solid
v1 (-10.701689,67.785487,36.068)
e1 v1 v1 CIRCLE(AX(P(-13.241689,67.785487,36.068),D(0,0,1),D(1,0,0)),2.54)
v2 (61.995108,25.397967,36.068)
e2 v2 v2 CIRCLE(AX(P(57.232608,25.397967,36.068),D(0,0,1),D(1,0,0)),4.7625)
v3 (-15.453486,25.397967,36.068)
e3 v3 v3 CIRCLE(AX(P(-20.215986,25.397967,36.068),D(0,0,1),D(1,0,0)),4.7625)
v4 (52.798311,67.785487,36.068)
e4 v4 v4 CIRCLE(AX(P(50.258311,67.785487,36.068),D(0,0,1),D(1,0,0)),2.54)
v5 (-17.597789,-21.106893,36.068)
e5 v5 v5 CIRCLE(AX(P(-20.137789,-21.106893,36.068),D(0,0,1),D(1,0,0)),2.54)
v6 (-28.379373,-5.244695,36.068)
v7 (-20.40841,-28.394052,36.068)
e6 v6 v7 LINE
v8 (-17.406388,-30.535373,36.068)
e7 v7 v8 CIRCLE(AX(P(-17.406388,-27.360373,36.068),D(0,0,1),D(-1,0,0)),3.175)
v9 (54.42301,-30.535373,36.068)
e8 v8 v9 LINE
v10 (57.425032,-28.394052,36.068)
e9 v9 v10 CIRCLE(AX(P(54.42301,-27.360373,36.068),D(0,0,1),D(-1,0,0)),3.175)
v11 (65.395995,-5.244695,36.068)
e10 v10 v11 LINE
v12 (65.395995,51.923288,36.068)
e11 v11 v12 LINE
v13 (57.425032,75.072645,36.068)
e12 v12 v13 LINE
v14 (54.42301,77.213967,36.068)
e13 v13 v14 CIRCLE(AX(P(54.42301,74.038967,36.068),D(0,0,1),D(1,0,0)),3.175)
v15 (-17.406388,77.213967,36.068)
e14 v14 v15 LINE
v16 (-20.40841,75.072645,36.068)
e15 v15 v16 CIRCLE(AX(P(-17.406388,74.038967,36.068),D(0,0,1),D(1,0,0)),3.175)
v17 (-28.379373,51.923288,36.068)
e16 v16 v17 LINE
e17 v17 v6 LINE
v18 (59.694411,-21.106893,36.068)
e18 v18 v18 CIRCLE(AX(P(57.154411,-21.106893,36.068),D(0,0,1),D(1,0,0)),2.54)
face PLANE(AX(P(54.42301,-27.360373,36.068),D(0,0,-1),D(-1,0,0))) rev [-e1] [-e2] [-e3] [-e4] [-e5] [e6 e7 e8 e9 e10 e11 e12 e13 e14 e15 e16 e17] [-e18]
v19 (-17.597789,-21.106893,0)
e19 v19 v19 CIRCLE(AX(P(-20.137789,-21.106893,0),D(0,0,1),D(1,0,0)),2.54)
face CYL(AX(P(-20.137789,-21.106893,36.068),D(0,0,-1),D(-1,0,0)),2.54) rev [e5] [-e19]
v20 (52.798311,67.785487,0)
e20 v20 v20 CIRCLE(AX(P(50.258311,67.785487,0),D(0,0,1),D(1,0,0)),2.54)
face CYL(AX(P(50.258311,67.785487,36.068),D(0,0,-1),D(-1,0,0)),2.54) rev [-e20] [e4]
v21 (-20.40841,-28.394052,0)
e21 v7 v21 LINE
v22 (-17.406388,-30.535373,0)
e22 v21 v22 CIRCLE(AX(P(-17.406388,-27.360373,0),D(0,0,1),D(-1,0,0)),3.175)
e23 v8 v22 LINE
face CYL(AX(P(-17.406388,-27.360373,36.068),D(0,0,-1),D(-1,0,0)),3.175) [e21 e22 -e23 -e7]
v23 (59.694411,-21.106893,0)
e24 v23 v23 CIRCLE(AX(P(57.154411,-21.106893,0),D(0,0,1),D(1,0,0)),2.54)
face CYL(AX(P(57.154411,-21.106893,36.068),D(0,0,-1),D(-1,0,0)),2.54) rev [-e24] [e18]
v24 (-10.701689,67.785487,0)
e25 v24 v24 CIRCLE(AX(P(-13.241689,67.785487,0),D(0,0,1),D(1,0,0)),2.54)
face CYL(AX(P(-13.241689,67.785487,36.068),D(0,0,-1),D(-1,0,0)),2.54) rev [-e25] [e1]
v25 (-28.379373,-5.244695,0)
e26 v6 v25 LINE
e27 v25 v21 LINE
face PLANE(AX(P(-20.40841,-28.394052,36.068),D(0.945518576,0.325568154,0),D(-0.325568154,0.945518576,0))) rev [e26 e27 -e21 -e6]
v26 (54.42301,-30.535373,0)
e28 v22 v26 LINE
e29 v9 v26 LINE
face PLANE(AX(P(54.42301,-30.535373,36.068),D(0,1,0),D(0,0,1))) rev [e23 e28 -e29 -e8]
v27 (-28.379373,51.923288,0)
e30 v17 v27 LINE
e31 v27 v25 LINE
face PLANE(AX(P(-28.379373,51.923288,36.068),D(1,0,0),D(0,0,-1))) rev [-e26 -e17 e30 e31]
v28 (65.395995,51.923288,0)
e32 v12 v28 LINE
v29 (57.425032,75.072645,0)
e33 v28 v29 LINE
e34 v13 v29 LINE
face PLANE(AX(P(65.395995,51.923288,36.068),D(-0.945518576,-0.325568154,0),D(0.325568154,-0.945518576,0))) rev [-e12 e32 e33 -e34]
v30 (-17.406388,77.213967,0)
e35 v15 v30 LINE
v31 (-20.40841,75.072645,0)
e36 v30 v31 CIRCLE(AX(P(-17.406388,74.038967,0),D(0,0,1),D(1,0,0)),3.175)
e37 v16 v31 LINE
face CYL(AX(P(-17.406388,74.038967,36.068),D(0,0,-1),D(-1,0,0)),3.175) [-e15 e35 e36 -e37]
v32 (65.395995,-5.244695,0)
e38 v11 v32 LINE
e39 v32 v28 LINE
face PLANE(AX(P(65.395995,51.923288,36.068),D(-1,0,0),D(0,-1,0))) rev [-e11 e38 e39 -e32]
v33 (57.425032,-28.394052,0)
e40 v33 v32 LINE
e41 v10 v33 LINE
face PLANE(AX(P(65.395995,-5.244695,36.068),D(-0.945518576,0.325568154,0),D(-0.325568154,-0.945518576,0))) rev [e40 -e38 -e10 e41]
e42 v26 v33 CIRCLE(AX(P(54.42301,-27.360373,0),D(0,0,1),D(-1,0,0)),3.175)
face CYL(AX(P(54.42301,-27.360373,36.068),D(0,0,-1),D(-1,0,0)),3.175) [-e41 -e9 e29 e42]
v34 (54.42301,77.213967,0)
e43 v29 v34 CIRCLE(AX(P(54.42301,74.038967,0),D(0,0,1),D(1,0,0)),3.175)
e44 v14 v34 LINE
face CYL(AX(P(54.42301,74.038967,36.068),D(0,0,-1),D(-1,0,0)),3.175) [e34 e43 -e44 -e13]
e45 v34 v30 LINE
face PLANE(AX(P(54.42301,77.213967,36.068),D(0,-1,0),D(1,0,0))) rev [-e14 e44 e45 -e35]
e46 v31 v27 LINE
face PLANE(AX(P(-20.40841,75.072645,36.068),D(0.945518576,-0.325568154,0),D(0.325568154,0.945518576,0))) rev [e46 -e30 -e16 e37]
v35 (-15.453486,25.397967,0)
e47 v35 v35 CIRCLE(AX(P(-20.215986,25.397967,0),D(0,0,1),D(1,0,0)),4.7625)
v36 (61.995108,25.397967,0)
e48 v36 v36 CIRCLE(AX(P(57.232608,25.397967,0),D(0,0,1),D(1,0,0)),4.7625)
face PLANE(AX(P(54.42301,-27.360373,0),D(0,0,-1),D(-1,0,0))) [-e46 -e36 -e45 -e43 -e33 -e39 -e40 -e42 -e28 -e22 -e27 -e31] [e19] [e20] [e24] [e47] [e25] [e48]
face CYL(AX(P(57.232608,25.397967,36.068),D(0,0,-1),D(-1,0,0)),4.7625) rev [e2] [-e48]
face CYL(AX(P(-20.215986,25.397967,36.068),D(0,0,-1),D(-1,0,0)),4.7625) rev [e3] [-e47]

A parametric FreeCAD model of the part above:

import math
import FreeCAD as App
import Part
import Sketcher
from FreeCAD import Vector
Q = App.Units.Quantity

doc = App.newDocument("Part")
params = doc.addObject("Spreadsheet::Sheet", "Params")
for row, (alias, value) in enumerate([
    ("sketch1_diameter", "0.2 in"),
    ("sketch1_diameter2", "0.375 in"),
    ("sketch1_radius", "0.125 in"),
    ("pad1_length", "1.42 in"),
], start=1):
    params.set(f"A{row}", alias)
    params.set(f"B{row}", "=" + value)
    params.setAlias(f"B{row}", alias)

body = doc.addObject("PartDesign::Body", "Body")

# Sketch on XY plane
sketch1 = body.newObject("Sketcher::SketchObject", "Sketch")
sketch1.AttachmentSupport = (doc.getObject("XY_Plane"), [""])
sketch1.MapMode = "FlatFace"
sketch1.addGeometry(Part.LineSegment(Vector(65.4, 51.9, 0), Vector(57.4, 75.1, 0)), False)
sketch1.addGeometry(Part.ArcOfCircle(Part.Circle(Vector(54.4, 74, 0), Vector(0, 0, 1), 3.2), math.radians(19), math.radians(90)), False)
sketch1.addGeometry(Part.LineSegment(Vector(54.4, 77.2, 0), Vector(-17.4, 77.2, 0)), False)
sketch1.addGeometry(Part.ArcOfCircle(Part.Circle(Vector(-17.4, 74, 0), Vector(0, 0, 1), 3.2), math.radians(90), math.radians(161)), False)
sketch1.addGeometry(Part.LineSegment(Vector(-20.4, 75.1, 0), Vector(-28.4, 51.9, 0)), False)
sketch1.addGeometry(Part.LineSegment(Vector(-28.4, 51.9, 0), Vector(-28.4, -5.2, 0)), False)
sketch1.addGeometry(Part.LineSegment(Vector(-28.4, -5.2, 0), Vector(-20.4, -28.4, 0)), False)
sketch1.addGeometry(Part.ArcOfCircle(Part.Circle(Vector(-17.4, -27.4, 0), Vector(0, 0, 1), 3.2), math.radians(-161), math.radians(-90)), False)
sketch1.addGeometry(Part.LineSegment(Vector(-17.4, -30.5, 0), Vector(54.4, -30.5, 0)), False)
sketch1.addGeometry(Part.ArcOfCircle(Part.Circle(Vector(54.4, -27.4, 0), Vector(0, 0, 1), 3.2), math.radians(-90), math.radians(-19)), False)
sketch1.addGeometry(Part.LineSegment(Vector(57.4, -28.4, 0), Vector(65.4, -5.2, 0)), False)
sketch1.addGeometry(Part.LineSegment(Vector(65.4, -5.2, 0), Vector(65.4, 51.9, 0)), False)
sketch1.addGeometry(Part.Circle(Vector(-20.1, -21.1, 0), Vector(0, 0, 1), 2.5), False)
sketch1.addGeometry(Part.Circle(Vector(57.2, -21.1, 0), Vector(0, 0, 1), 2.5), False)
sketch1.addGeometry(Part.Circle(Vector(-20.2, 25.4, 0), Vector(0, 0, 1), 4.8), False)
sketch1.addGeometry(Part.Circle(Vector(-13.2, 67.8, 0), Vector(0, 0, 1), 2.5), False)
sketch1.addGeometry(Part.Circle(Vector(57.2, 25.4, 0), Vector(0, 0, 1), 4.8), False)
sketch1.addGeometry(Part.Circle(Vector(50.3, 67.8, 0), Vector(0, 0, 1), 2.5), False)
sketch1.addConstraint(Sketcher.Constraint("Tangent", 0, 2, 1, 1))
sketch1.addConstraint(Sketcher.Constraint("Tangent", 1, 2, 2, 1))
sketch1.addConstraint(Sketcher.Constraint("Tangent", 2, 2, 3, 1))
sketch1.addConstraint(Sketcher.Constraint("Tangent", 3, 2, 4, 1))
sketch1.addConstraint(Sketcher.Constraint("Coincident", 4, 2, 5, 1))
sketch1.addConstraint(Sketcher.Constraint("Coincident", 5, 2, 6, 1))
sketch1.addConstraint(Sketcher.Constraint("Tangent", 6, 2, 7, 1))
sketch1.addConstraint(Sketcher.Constraint("Tangent", 7, 2, 8, 1))
sketch1.addConstraint(Sketcher.Constraint("Tangent", 8, 2, 9, 1))
sketch1.addConstraint(Sketcher.Constraint("Tangent", 9, 2, 10, 1))
sketch1.addConstraint(Sketcher.Constraint("Coincident", 10, 2, 11, 1))
sketch1.addConstraint(Sketcher.Constraint("Coincident", 11, 2, 0, 1))
sketch1.addConstraint(Sketcher.Constraint("Horizontal", 2))
sketch1.addConstraint(Sketcher.Constraint("Vertical", 5))
sketch1.addConstraint(Sketcher.Constraint("Horizontal", 8))
sketch1.addConstraint(Sketcher.Constraint("Vertical", 11))
sketch1.addConstraint(Sketcher.Constraint("Equal", 1, 3))
sketch1.addConstraint(Sketcher.Constraint("Equal", 3, 7))
sketch1.addConstraint(Sketcher.Constraint("Equal", 7, 9))
sketch1.addConstraint(Sketcher.Constraint("Equal", 12, 13))
sketch1.addConstraint(Sketcher.Constraint("Equal", 13, 15))
sketch1.addConstraint(Sketcher.Constraint("Equal", 14, 16))
sketch1.addConstraint(Sketcher.Constraint("Equal", 15, 17))
sketch1.addConstraint(Sketcher.Constraint("Parallel", 0, 6))
sketch1.addConstraint(Sketcher.Constraint("Parallel", 4, 10))
sketch1.addConstraint(Sketcher.Constraint("Horizontal", 12, 3, 13, 3))
sketch1.addConstraint(Sketcher.Constraint("Horizontal", 14, 3, 16, 3))
sketch1.addConstraint(Sketcher.Constraint("Horizontal", 15, 3, 17, 3))
sketch1.addConstraint(Sketcher.Constraint("Horizontal", 0, 2, 3, 2))
sketch1.addConstraint(Sketcher.Constraint("Horizontal", 5, 2, 10, 2))
sketch1.addConstraint(Sketcher.Constraint("Horizontal", 4, 2, 11, 2))
sketch1.addConstraint(Sketcher.Constraint("Vertical", 3, 3, 7, 3))
sketch1.addConstraint(Sketcher.Constraint("Diameter", 12, Q("0.2 in")))
sketch1.addConstraint(Sketcher.Constraint("Diameter", 14, Q("0.375 in")))
sketch1.addConstraint(Sketcher.Constraint("Angle", 0, Q("109 deg")))
sketch1.addConstraint(Sketcher.Constraint("Radius", 1, Q("0.125 in")))
sketch1.addConstraint(Sketcher.Constraint("DistanceX", 15, 3, 17, 3, Q("2.5 in")))
sketch1.addConstraint(Sketcher.Constraint("DistanceY", 16, 3, 1, 2, Q("2.04 in")))
sketch1.addConstraint(Sketcher.Constraint("DistanceX", 12, 3, 13, 3, Q("3.043 in")))
sketch1.addConstraint(Sketcher.Constraint("DistanceX", 2, 2, 2, 1, 71.829399))
sketch1.addConstraint(Sketcher.Constraint("DistanceY", 7, 3, 3, 3, Q("3.9921 in")))
sketch1.addConstraint(Sketcher.Constraint("DistanceY", 7, 3, 12, 3, Q("0.2462 in")))
sketch1.addConstraint(Sketcher.Constraint("DistanceY", 15, 3, 3, 3, Q("0.2462 in")))
sketch1.addConstraint(Sketcher.Constraint("DistanceX", 12, 3, 15, 3, Q("0.2715 in")))
sketch1.addConstraint(Sketcher.Constraint("DistanceX", 12, 3, 7, 3, 2.731401))
sketch1.addConstraint(Sketcher.Constraint("DistanceY", 4, 2, 15, 3, 15.862199))
sketch1.addConstraint(Sketcher.Constraint("DistanceX", -1, 1, 1, 3, 54.42301))
sketch1.addConstraint(Sketcher.Constraint("DistanceX", -1, 1, 16, 3, 57.232608))
sketch1.addConstraint(Sketcher.Constraint("DistanceY", -1, 1, 1, 3, 74.038967))
sketch1.addConstraint(Sketcher.Constraint("DistanceX", 14, 3, -1, 1, 20.215986))
sketch1.setExpression("Constraints[32]", "Params.sketch1_diameter")
sketch1.setExpression("Constraints[33]", "Params.sketch1_diameter2")
sketch1.setExpression("Constraints[35]", "Params.sketch1_radius")
pad1 = body.newObject("PartDesign::Pad", "Pad")
pad1.Profile = sketch1
pad1.setExpression("Length", "Params.pad1_length")

doc.recompute()
